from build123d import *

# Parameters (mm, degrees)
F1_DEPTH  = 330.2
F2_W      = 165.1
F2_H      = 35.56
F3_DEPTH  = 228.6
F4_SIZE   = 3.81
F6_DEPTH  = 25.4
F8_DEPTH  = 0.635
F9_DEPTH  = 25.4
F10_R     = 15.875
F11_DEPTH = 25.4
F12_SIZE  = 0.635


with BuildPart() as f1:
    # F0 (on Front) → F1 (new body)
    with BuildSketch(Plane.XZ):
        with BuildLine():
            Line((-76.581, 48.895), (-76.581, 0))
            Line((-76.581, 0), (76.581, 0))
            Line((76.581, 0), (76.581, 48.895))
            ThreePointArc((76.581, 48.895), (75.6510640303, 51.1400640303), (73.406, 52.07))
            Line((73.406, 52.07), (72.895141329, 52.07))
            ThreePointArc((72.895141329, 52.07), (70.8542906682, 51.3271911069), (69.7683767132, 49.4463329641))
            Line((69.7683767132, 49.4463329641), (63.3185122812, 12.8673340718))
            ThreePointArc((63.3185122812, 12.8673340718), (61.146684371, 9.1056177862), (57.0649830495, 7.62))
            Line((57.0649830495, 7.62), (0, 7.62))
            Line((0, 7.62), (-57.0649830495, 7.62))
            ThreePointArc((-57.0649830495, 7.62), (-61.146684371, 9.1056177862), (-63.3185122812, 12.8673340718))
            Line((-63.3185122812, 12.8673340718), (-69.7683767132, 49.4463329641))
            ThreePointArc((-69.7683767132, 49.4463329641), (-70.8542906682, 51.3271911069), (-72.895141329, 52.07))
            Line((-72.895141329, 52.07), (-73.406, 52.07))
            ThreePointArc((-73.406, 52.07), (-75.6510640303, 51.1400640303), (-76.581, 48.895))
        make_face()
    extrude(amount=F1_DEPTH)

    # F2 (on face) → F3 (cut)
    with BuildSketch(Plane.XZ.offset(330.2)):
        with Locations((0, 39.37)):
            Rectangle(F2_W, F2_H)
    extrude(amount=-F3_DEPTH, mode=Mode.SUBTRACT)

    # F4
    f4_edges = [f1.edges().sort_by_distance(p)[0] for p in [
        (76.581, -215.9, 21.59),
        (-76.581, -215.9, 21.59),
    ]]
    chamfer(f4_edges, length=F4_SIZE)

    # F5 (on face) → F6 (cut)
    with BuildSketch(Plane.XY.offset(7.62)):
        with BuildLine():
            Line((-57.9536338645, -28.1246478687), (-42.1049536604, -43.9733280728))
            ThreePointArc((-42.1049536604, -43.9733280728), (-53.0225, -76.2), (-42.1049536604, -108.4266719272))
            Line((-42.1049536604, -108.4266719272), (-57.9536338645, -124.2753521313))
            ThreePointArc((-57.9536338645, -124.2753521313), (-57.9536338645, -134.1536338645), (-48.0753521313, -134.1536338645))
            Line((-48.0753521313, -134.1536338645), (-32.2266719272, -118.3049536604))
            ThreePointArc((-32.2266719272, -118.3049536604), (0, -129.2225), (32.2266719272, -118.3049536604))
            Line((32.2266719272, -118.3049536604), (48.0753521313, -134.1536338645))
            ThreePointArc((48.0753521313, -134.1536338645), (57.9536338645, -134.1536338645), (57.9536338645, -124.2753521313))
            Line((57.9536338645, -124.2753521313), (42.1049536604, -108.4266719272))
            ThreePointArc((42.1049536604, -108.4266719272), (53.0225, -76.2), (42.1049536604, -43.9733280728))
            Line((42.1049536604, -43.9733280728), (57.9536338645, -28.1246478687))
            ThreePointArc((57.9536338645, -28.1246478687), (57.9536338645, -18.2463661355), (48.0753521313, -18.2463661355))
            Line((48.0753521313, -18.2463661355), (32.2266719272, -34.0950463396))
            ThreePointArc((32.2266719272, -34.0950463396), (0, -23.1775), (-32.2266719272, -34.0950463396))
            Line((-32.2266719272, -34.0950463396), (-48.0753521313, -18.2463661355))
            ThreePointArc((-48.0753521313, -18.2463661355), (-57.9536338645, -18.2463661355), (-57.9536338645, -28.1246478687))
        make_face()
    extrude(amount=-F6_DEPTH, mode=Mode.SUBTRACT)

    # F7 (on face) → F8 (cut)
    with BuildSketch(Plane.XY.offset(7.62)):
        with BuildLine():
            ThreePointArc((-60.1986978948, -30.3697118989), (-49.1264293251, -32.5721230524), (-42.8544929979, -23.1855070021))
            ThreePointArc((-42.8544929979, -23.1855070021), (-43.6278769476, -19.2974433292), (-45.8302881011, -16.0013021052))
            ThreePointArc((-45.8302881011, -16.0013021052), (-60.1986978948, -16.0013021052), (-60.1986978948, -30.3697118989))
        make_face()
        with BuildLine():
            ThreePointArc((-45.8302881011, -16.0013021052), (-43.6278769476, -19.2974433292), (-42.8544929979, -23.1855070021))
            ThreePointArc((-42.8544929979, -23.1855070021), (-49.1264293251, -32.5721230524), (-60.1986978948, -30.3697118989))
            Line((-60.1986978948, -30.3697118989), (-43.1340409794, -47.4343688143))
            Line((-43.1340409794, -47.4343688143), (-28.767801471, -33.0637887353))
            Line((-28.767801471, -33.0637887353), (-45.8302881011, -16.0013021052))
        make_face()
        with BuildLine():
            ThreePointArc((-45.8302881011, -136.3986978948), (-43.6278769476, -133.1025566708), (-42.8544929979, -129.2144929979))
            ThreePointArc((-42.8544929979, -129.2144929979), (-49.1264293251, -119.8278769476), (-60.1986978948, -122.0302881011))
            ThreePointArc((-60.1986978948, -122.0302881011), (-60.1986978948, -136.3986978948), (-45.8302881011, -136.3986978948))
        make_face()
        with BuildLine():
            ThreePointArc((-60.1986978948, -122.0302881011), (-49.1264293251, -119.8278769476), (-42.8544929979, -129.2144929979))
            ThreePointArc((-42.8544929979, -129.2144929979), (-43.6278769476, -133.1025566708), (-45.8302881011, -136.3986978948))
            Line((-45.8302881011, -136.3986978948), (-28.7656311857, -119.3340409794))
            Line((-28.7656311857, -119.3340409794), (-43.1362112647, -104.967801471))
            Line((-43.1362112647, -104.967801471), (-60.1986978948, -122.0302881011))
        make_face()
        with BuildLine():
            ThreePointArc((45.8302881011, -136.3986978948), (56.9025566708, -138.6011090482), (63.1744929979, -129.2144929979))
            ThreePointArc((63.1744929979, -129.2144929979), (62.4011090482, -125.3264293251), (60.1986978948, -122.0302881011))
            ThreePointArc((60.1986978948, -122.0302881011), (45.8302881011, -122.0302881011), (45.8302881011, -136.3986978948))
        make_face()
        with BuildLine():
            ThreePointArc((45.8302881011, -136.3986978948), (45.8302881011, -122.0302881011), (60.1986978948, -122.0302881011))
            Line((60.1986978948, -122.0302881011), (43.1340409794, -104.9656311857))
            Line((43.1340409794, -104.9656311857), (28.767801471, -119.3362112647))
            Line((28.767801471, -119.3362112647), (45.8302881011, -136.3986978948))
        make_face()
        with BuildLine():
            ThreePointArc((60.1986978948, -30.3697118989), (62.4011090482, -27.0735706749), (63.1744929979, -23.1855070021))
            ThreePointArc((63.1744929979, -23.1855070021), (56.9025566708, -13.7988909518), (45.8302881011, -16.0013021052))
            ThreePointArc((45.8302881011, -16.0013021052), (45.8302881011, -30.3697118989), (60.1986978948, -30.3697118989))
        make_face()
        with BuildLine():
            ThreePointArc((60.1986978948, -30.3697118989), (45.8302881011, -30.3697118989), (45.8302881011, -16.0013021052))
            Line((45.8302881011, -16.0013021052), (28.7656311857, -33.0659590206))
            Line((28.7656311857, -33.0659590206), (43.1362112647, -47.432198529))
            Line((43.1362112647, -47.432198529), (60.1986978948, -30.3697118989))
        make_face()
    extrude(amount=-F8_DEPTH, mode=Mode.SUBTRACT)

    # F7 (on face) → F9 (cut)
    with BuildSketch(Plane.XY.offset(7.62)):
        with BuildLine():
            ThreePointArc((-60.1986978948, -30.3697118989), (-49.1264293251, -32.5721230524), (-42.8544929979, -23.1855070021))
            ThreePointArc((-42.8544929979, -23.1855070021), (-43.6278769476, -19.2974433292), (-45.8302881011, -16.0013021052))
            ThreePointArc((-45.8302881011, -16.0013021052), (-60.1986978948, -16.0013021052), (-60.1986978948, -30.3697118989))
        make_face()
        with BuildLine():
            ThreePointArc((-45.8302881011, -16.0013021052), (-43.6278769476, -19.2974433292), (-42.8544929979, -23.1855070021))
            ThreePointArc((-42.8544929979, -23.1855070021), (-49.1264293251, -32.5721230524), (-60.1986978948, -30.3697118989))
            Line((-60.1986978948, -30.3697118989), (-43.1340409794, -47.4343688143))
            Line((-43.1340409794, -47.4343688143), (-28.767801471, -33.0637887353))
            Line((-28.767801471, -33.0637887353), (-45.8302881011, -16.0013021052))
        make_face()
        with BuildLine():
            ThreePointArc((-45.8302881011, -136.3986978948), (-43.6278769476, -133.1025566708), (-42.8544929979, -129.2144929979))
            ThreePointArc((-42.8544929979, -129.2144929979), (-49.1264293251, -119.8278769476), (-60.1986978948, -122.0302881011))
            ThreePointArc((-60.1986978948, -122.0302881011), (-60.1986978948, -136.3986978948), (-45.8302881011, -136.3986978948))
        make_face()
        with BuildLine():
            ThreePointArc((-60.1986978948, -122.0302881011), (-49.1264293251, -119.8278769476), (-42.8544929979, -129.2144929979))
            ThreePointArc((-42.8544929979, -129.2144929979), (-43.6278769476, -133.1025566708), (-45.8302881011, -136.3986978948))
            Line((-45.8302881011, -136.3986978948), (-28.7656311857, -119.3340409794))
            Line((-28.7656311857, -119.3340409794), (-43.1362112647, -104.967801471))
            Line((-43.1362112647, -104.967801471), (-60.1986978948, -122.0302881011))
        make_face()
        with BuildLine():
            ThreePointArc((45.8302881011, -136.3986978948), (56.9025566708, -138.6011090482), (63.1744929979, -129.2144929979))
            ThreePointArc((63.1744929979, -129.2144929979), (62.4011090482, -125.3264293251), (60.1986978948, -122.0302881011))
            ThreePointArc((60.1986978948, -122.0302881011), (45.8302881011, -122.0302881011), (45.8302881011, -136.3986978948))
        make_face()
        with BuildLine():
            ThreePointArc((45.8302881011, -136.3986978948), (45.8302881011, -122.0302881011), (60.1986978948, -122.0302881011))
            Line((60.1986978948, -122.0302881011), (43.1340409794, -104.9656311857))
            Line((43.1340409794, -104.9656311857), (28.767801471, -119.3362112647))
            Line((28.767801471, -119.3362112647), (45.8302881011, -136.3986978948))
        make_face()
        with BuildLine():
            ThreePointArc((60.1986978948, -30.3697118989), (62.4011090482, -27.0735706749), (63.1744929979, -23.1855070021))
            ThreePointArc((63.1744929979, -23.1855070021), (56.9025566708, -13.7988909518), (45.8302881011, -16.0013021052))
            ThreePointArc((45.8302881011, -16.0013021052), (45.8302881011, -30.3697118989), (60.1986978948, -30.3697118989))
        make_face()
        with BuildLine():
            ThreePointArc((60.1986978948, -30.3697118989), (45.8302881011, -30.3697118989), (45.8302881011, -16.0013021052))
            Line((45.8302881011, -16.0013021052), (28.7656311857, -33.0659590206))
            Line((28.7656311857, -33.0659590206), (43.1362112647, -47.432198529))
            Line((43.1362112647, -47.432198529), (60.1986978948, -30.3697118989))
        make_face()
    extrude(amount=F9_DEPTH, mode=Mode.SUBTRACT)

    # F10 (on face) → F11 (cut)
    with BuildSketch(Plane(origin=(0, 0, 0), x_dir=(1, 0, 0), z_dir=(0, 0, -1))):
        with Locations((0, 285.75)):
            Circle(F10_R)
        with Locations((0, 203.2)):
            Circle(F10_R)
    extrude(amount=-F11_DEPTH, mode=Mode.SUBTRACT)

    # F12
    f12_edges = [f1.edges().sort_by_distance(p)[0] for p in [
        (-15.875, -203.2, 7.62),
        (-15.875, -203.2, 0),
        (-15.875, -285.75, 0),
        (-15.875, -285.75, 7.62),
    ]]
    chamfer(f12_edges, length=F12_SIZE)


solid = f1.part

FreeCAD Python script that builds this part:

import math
import FreeCAD as App
import Part
import Sketcher
Q = App.Units.Quantity


def edges_at(feature, points):
    """Names of the edges that pass closest to the given points."""
    edges = feature.Shape.Edges
    near = lambda p: min(range(len(edges)), key=lambda i: edges[i].distToShape(Part.Vertex(*p))[0])
    return sorted({f"Edge{near(p) + 1}" for p in points})


def add_polygon(sketch, points):
    """Adds a closed chain of lines whose ends are joined by coincident constraints."""
    first, n = sketch.GeometryCount, len(points)
    for a, b in zip(points, points[1:] + points[:1]):
        sketch.addGeometry(Part.LineSegment(App.Vector(*a, 0), App.Vector(*b, 0)), False)
    for i in range(n):
        sketch.addConstraint(Sketcher.Constraint("Coincident", first + i, 2, first + (i + 1) % n, 1))

doc = App.newDocument("Part")
body = doc.addObject("PartDesign::Body", "Body")

# Sketch on XZ plane
sketch1 = body.newObject("Sketcher::SketchObject", "Sketch")
sketch1.AttachmentSupport = (doc.getObject("XZ_Plane"), [""])
sketch1.MapMode = "FlatFace"
sketch1.addGeometry([
    Part.LineSegment(App.Vector(-76.6, 48.9, 0), App.Vector(-76.6, 0, 0)),  # 0
    Part.LineSegment(App.Vector(-76.6, 0, 0), App.Vector(76.6, 0, 0)),  # 1
    Part.LineSegment(App.Vector(76.6, 0, 0), App.Vector(76.6, 48.9, 0)),  # 2
    Part.ArcOfCircle(Part.Circle(App.Vector(73.4, 48.9, 0), App.Vector(0, 0, 1), 3.2), math.radians(0), math.radians(90)),  # 3
    Part.LineSegment(App.Vector(73.4, 52.1, 0), App.Vector(72.9, 52.1, 0)),  # 4
    Part.ArcOfCircle(Part.Circle(App.Vector(72.9, 48.9, 0), App.Vector(0, 0, 1), 3.2), math.radians(90), math.radians(170)),  # 5
    Part.LineSegment(App.Vector(69.8, 49.4, 0), App.Vector(63.3, 12.9, 0)),  # 6
    Part.ArcOfCircle(Part.Circle(App.Vector(57.1, 14, 0), App.Vector(0, 0, 1), 6.3), math.radians(-90), math.radians(-10)),  # 7
    Part.LineSegment(App.Vector(57.1, 7.6, 0), App.Vector(-57.1, 7.6, 0)),  # 8
    Part.ArcOfCircle(Part.Circle(App.Vector(-57.1, 14, 0), App.Vector(0, 0, 1), 6.3), math.radians(-170), math.radians(-90)),  # 9
    Part.LineSegment(App.Vector(-63.3, 12.9, 0), App.Vector(-69.8, 49.4, 0)),  # 10
    Part.ArcOfCircle(Part.Circle(App.Vector(-72.9, 48.9, 0), App.Vector(0, 0, 1), 3.2), math.radians(10), math.radians(90)),  # 11
    Part.LineSegment(App.Vector(-72.9, 52.1, 0), App.Vector(-73.4, 52.1, 0)),  # 12
    Part.ArcOfCircle(Part.Circle(App.Vector(-73.4, 48.9, 0), App.Vector(0, 0, 1), 3.2), math.radians(90), math.radians(180)),  # 13
], False)
sketch1.addConstraint([
    Sketcher.Constraint("Coincident", 0, 2, 1, 1),
    Sketcher.Constraint("Coincident", 1, 2, 2, 1),
    Sketcher.Constraint("Tangent", 2, 2, 3, 1),
    Sketcher.Constraint("Tangent", 3, 2, 4, 1),
    Sketcher.Constraint("Tangent", 4, 2, 5, 1),
    Sketcher.Constraint("Tangent", 5, 2, 6, 1),
    Sketcher.Constraint("Tangent", 6, 2, 7, 2),
    Sketcher.Constraint("Tangent", 7, 1, 8, 1),
    Sketcher.Constraint("Tangent", 8, 2, 9, 2),
    Sketcher.Constraint("Tangent", 9, 1, 10, 1),
    Sketcher.Constraint("Tangent", 10, 2, 11, 1),
    Sketcher.Constraint("Tangent", 11, 2, 12, 1),
    Sketcher.Constraint("Tangent", 12, 2, 13, 1),
    Sketcher.Constraint("Tangent", 13, 2, 0, 1),
    Sketcher.Constraint("Vertical", 0),
    Sketcher.Constraint("Horizontal", 1),
    Sketcher.Constraint("Vertical", 2),
    Sketcher.Constraint("Horizontal", 4),
    Sketcher.Constraint("Horizontal", 8),
    Sketcher.Constraint("Horizontal", 12),
    Sketcher.Constraint("Equal", 3, 5),
    Sketcher.Constraint("Equal", 7, 9),
    Sketcher.Constraint("Equal", 5, 11),
    Sketcher.Constraint("Equal", 11, 13),
    Sketcher.Constraint("Symmetric", 0, 2, 1, 2, -1, 1),
    Sketcher.Constraint("Symmetric", 5, 3, 11, 3, -2),
    Sketcher.Constraint("Horizontal", 6, 2, 9, 1),
    Sketcher.Constraint("Radius", 7, Q("0.25 in")),
    Sketcher.Constraint("Angle", 6, Q("-100 deg")),
    Sketcher.Constraint("Radius", 3, Q("0.125 in")),
    Sketcher.Constraint("DistanceX", 1, 1, 1, 2, Q("6.03 in")),
    Sketcher.Constraint("DistanceY", -1, 1, 7, 1, Q("0.3 in")),
    Sketcher.Constraint("DistanceY", 7, 3, 3, 2, Q("1.5 in")),
    Sketcher.Constraint("DistanceX", 4, 2, 4, 1, 0.510859),
])
pad1 = body.newObject("PartDesign::Pad", "Pad")
pad1.Profile = sketch1
pad1.Length = Q("13 in")

# Sketch on XZ plane
sketch2 = body.newObject("Sketcher::SketchObject", "Sketch001")
sketch2.AttachmentSupport = (doc.getObject("XZ_Plane"), [""])
sketch2.MapMode = "FlatFace"
sketch2.AttachmentOffset = App.Placement(App.Vector(0, 0, 13 * 25.4), App.Rotation())
add_polygon(sketch2, [(-83, 57), (-83, 22), (83, 22), (83, 57)])  # lines 0-3
sketch2.addConstraint([
    Sketcher.Constraint("Vertical", 0),
    Sketcher.Constraint("Horizontal", 1),
    Sketcher.Constraint("Vertical", 2),
    Sketcher.Constraint("Horizontal", 3),
    Sketcher.Constraint("DistanceX", 1, 1, 1, 2, Q("6.5 in")),
    Sketcher.Constraint("DistanceY", 0, 2, 0, 1, Q("1.4 in")),
    Sketcher.Constraint("DistanceX", 0, 2, -1, 1, Q("3.25 in")),
    Sketcher.Constraint("DistanceY", -1, 1, 0, 2, Q("0.85 in")),
])
pocket1 = body.newObject("PartDesign::Pocket", "Pocket")
pocket1.Profile = sketch2
pocket1.Length = Q("9 in")
doc.recompute()

chamfer = body.newObject("PartDesign::Chamfer", "Chamfer")
chamfer.Base = (pocket1, edges_at(pocket1, [(76.581, -215.9, 21.59), (-76.581, -215.9, 21.59)]))
chamfer.Size = Q("0.15 in")

# Sketch on XY plane
sketch3 = body.newObject("Sketcher::SketchObject", "Sketch002")
sketch3.AttachmentSupport = (doc.getObject("XY_Plane"), [""])
sketch3.MapMode = "FlatFace"
sketch3.AttachmentOffset = App.Placement(App.Vector(0, 0, 0.3 * 25.4), App.Rotation())
sketch3.addGeometry([
    Part.LineSegment(App.Vector(-58, -28, 0), App.Vector(-42, -44, 0)),  # 0
    Part.ArcOfCircle(Part.Circle(App.Vector(0, -76, 0), App.Vector(0, 0, 1), 53), math.radians(143), math.radians(217)),  # 1
    Part.LineSegment(App.Vector(-42, -108, 0), App.Vector(-58, -124, 0)),  # 2
    Part.ArcOfCircle(Part.Circle(App.Vector(-53, -129, 0), App.Vector(0, 0, 1), 7), math.radians(135), math.radians(315)),  # 3
    Part.LineSegment(App.Vector(-48, -134, 0), App.Vector(-32, -118, 0)),  # 4
    Part.ArcOfCircle(Part.Circle(App.Vector(0, -76, 0), App.Vector(0, 0, 1), 53), math.radians(-127), math.radians(-53)),  # 5
    Part.LineSegment(App.Vector(32, -118, 0), App.Vector(48, -134, 0)),  # 6
    Part.ArcOfCircle(Part.Circle(App.Vector(53, -129, 0), App.Vector(0, 0, 1), 7), math.radians(-135), math.radians(45)),  # 7
    Part.LineSegment(App.Vector(58, -124, 0), App.Vector(42, -108, 0)),  # 8
    Part.ArcOfCircle(Part.Circle(App.Vector(0, -76, 0), App.Vector(0, 0, 1), 53), math.radians(-37), math.radians(37)),  # 9
    Part.LineSegment(App.Vector(42, -44, 0), App.Vector(58, -28, 0)),  # 10
    Part.ArcOfCircle(Part.Circle(App.Vector(53, -23, 0), App.Vector(0, 0, 1), 7), math.radians(-45), math.radians(135)),  # 11
    Part.LineSegment(App.Vector(48, -18, 0), App.Vector(32, -34, 0)),  # 12
    Part.ArcOfCircle(Part.Circle(App.Vector(0, -76, 0), App.Vector(0, 0, 1), 53), math.radians(53), math.radians(127)),  # 13
    Part.LineSegment(App.Vector(-32, -34, 0), App.Vector(-48, -18, 0)),  # 14
    Part.ArcOfCircle(Part.Circle(App.Vector(-53, -23, 0), App.Vector(0, 0, 1), 7), math.radians(45), math.radians(225)),  # 15
], False)
sketch3.addConstraint([
    Sketcher.Constraint("Coincident", 0, 2, 1, 1),
    Sketcher.Constraint("Coincident", 1, 2, 2, 1),
    Sketcher.Constraint("Tangent", 2, 2, 3, 1),
    Sketcher.Constraint("Tangent", 3, 2, 4, 1),
    Sketcher.Constraint("Coincident", 4, 2, 5, 1),
    Sketcher.Constraint("Coincident", 5, 2, 6, 1),
    Sketcher.Constraint("Tangent", 6, 2, 7, 1),
    Sketcher.Constraint("Tangent", 7, 2, 8, 1),
    Sketcher.Constraint("Coincident", 8, 2, 9, 1),
    Sketcher.Constraint("Coincident", 9, 2, 10, 1),
    Sketcher.Constraint("Tangent", 10, 2, 11, 1),
    Sketcher.Constraint("Tangent", 11, 2, 12, 1),
    Sketcher.Constraint("Coincident", 12, 2, 13, 1),
    Sketcher.Constraint("Coincident", 13, 2, 14, 1),
    Sketcher.Constraint("Tangent", 14, 2, 15, 1),
    Sketcher.Constraint("Tangent", 15, 2, 0, 1),
    Sketcher.Constraint("Coincident", 5, 3, 1, 3),
    Sketcher.Constraint("Coincident", 9, 3, 1, 3),
    Sketcher.Constraint("Coincident", 13, 3, 1, 3),
    Sketcher.Constraint("Equal", 1, 5),
    Sketcher.Constraint("Equal", 3, 7),
    Sketcher.Constraint("Equal", 5, 9),
    Sketcher.Constraint("Equal", 7, 11),
    Sketcher.Constraint("Equal", 9, 13),
    Sketcher.Constraint("Equal", 11, 15),
    Sketcher.Constraint("Symmetric", 3, 3, 7, 3, -2),
    Sketcher.Constraint("Symmetric", 11, 3, 15, 3, -2),
    Sketcher.Constraint("Symmetric", 4, 2, 5, 2, -2),
    Sketcher.Constraint("Perpendicular", 0, 2),
    Sketcher.Constraint("Parallel", 2, 4),
    Sketcher.Constraint("Perpendicular", 4, 6),
    Sketcher.Constraint("Parallel", 6, 8),
    Sketcher.Constraint("Perpendicular", 8, 10),
    Sketcher.Constraint("Parallel", 10, 12),
    Sketcher.Constraint("Perpendicular", 12, 14),
    Sketcher.Constraint("Vertical", 7, 3, 11, 3),
    Sketcher.Constraint("Vertical", 0, 2, 1, 2),
    Sketcher.Constraint("Equal", 2, 4),
    Sketcher.Constraint("DistanceY", 1, 3, -1, 1, Q("3 in")),
    Sketcher.Constraint("Radius", 3, Q("0.275 in")),
    Sketcher.Constraint("Radius", 1, Q("2.0875 in")),
    Sketcher.Constraint("DistanceX", 3, 2, 1, 2, 5.970398),
])
pocket2 = body.newObject("PartDesign::Pocket", "Pocket001")
pocket2.Profile = sketch3
pocket2.Length = Q("1 in")

# Sketch on XY plane
sketch4 = body.newObject("Sketcher::SketchObject", "Sketch003")
sketch4.AttachmentSupport = (doc.getObject("XY_Plane"), [""])
sketch4.MapMode = "FlatFace"
sketch4.AttachmentOffset = App.Placement(App.Vector(0, 0, 0.3 * 25.4), App.Rotation())
sketch4.addGeometry([
    Part.ArcOfCircle(Part.Circle(App.Vector(-53, -23, 0), App.Vector(0, 0, 1), 10), math.radians(45), math.radians(225)),  # 0
    Part.LineSegment(App.Vector(-60, -30, 0), App.Vector(-43, -47, 0)),  # 1
    Part.LineSegment(App.Vector(-43, -47, 0), App.Vector(-29, -33, 0)),  # 2
    Part.LineSegment(App.Vector(-29, -33, 0), App.Vector(-46, -16, 0)),  # 3
    Part.ArcOfCircle(Part.Circle(App.Vector(-53, -129, 0), App.Vector(0, 0, 1), 10), math.radians(135), math.radians(315)),  # 4
    Part.LineSegment(App.Vector(-46, -136, 0), App.Vector(-29, -119, 0)),  # 5
    Part.LineSegment(App.Vector(-29, -119, 0), App.Vector(-43, -105, 0)),  # 6
    Part.LineSegment(App.Vector(-43, -105, 0), App.Vector(-60, -122, 0)),  # 7
    Part.ArcOfCircle(Part.Circle(App.Vector(53, -129, 0), App.Vector(0, 0, 1), 10), math.radians(-135), math.radians(0)),  # 8
    Part.ArcOfCircle(Part.Circle(App.Vector(53, -129, 0), App.Vector(0, 0, 1), 10), math.radians(0), math.radians(45)),  # 9
    Part.LineSegment(App.Vector(60, -122, 0), App.Vector(43, -105, 0)),  # 10
    Part.LineSegment(App.Vector(43, -105, 0), App.Vector(29, -119, 0)),  # 11
    Part.LineSegment(App.Vector(29, -119, 0), App.Vector(46, -136, 0)),  # 12
    Part.ArcOfCircle(Part.Circle(App.Vector(53, -23, 0), App.Vector(0, 0, 1), 10), math.radians(-45), math.radians(0)),  # 13
    Part.ArcOfCircle(Part.Circle(App.Vector(53, -23, 0), App.Vector(0, 0, 1), 10), math.radians(0), math.radians(135)),  # 14
    Part.LineSegment(App.Vector(46, -16, 0), App.Vector(29, -33, 0)),  # 15
    Part.LineSegment(App.Vector(29, -33, 0), App.Vector(43, -47, 0)),  # 16
    Part.LineSegment(App.Vector(43, -47, 0), App.Vector(60, -30, 0)),  # 17
], False)
sketch4.addConstraint([
    Sketcher.Constraint("Tangent", 0, 2, 1, 1),
    Sketcher.Constraint("Coincident", 1, 2, 2, 1),
    Sketcher.Constraint("Coincident", 2, 2, 3, 1),
    Sketcher.Constraint("Tangent", 3, 2, 0, 1),
    Sketcher.Constraint("Tangent", 4, 2, 5, 1),
    Sketcher.Constraint("Coincident", 5, 2, 6, 1),
    Sketcher.Constraint("Coincident", 6, 2, 7, 1),
    Sketcher.Constraint("Tangent", 7, 2, 4, 1),
    Sketcher.Constraint("Tangent", 8, 2, 9, 1),
    Sketcher.Constraint("Tangent", 9, 2, 10, 1),
    Sketcher.Constraint("Coincident", 10, 2, 11, 1),
    Sketcher.Constraint("Coincident", 11, 2, 12, 1),
    Sketcher.Constraint("Tangent", 12, 2, 8, 1),
    Sketcher.Constraint("Tangent", 13, 2, 14, 1),
    Sketcher.Constraint("Tangent", 14, 2, 15, 1),
    Sketcher.Constraint("Coincident", 15, 2, 16, 1),
    Sketcher.Constraint("Coincident", 16, 2, 17, 1),
    Sketcher.Constraint("Tangent", 17, 2, 13, 1),
    Sketcher.Constraint("Equal", 0, 4),
    Sketcher.Constraint("Equal", 4, 8),
    Sketcher.Constraint("Equal", 8, 9),
    Sketcher.Constraint("Equal", 9, 13),
    Sketcher.Constraint("Equal", 13, 14),
    Sketcher.Constraint("Symmetric", 4, 3, 8, 3, -2),
    Sketcher.Constraint("Symmetric", 0, 3, 13, 3, -2),
    Sketcher.Constraint("Parallel", 1, 3),
    Sketcher.Constraint("Perpendicular", 3, 5),
    Sketcher.Constraint("Perpendicular", 2, 6),
    Sketcher.Constraint("Parallel", 5, 7),
    Sketcher.Constraint("Perpendicular", 7, 10),
    Sketcher.Constraint("Perpendicular", 6, 11),
    Sketcher.Constraint("Parallel", 10, 12),
    Sketcher.Constraint("Perpendicular", 12, 15),
    Sketcher.Constraint("Perpendicular", 11, 16),
    Sketcher.Constraint("Parallel", 15, 17),
    Sketcher.Constraint("Horizontal", 9, 3, 8, 2),
    Sketcher.Constraint("Horizontal", 7, 2, 9, 2),
    Sketcher.Constraint("Horizontal", 14, 3, 13, 2),
    Sketcher.Constraint("Vertical", 0, 3, 4, 3),
    Sketcher.Constraint("Equal", 1, 5),
    Sketcher.Constraint("Equal", 5, 10),
    Sketcher.Constraint("Equal", 10, 15),
    Sketcher.Constraint("Radius", 0, Q("0.4 in")),
    Sketcher.Constraint("Distance", 3, Q("0.95 in")),
    Sketcher.Constraint("DistanceX", 1, 2, 2, 2, Q("0.5656 in")),
    Sketcher.Constraint("DistanceX", 2, 2, -1, 1, 28.767801),
    Sketcher.Constraint("DistanceY", 6, 2, -1, 1, 104.967801),
    Sketcher.Constraint("DistanceY", 16, 2, -1, 1, 47.432199),
])
pocket3 = body.newObject("PartDesign::Pocket", "Pocket002")
pocket3.Profile = sketch4
pocket3.Length = Q("0.025 in")

# Sketch on XY plane
sketch5 = body.newObject("Sketcher::SketchObject", "Sketch004")
sketch5.AttachmentSupport = (doc.getObject("XY_Plane"), [""])
sketch5.MapMode = "FlatFace"
sketch5.AttachmentOffset = App.Placement(App.Vector(0, 0, 0.3 * 25.4), App.Rotation())
sketch5.addGeometry([
    Part.ArcOfCircle(Part.Circle(App.Vector(-53, -23, 0), App.Vector(0, 0, 1), 10), math.radians(45), math.radians(225)),  # 0
    Part.LineSegment(App.Vector(-60, -30, 0), App.Vector(-43, -47, 0)),  # 1
    Part.LineSegment(App.Vector(-43, -47, 0), App.Vector(-29, -33, 0)),  # 2
    Part.LineSegment(App.Vector(-29, -33, 0), App.Vector(-46, -16, 0)),  # 3
    Part.ArcOfCircle(Part.Circle(App.Vector(-53, -129, 0), App.Vector(0, 0, 1), 10), math.radians(135), math.radians(315)),  # 4
    Part.LineSegment(App.Vector(-46, -136, 0), App.Vector(-29, -119, 0)),  # 5
    Part.LineSegment(App.Vector(-29, -119, 0), App.Vector(-43, -105, 0)),  # 6
    Part.LineSegment(App.Vector(-43, -105, 0), App.Vector(-60, -122, 0)),  # 7
    Part.ArcOfCircle(Part.Circle(App.Vector(53, -129, 0), App.Vector(0, 0, 1), 10), math.radians(-135), math.radians(0)),  # 8
    Part.ArcOfCircle(Part.Circle(App.Vector(53, -129, 0), App.Vector(0, 0, 1), 10), math.radians(0), math.radians(45)),  # 9
    Part.LineSegment(App.Vector(60, -122, 0), App.Vector(43, -105, 0)),  # 10
    Part.LineSegment(App.Vector(43, -105, 0), App.Vector(29, -119, 0)),  # 11
    Part.LineSegment(App.Vector(29, -119, 0), App.Vector(46, -136, 0)),  # 12
    Part.ArcOfCircle(Part.Circle(App.Vector(53, -23, 0), App.Vector(0, 0, 1), 10), math.radians(-45), math.radians(0)),  # 13
    Part.ArcOfCircle(Part.Circle(App.Vector(53, -23, 0), App.Vector(0, 0, 1), 10), math.radians(0), math.radians(135)),  # 14
    Part.LineSegment(App.Vector(46, -16, 0), App.Vector(29, -33, 0)),  # 15
    Part.LineSegment(App.Vector(29, -33, 0), App.Vector(43, -47, 0)),  # 16
    Part.LineSegment(App.Vector(43, -47, 0), App.Vector(60, -30, 0)),  # 17
], False)
sketch5.addConstraint([
    Sketcher.Constraint("Tangent", 0, 2, 1, 1),
    Sketcher.Constraint("Coincident", 1, 2, 2, 1),
    Sketcher.Constraint("Coincident", 2, 2, 3, 1),
    Sketcher.Constraint("Tangent", 3, 2, 0, 1),
    Sketcher.Constraint("Tangent", 4, 2, 5, 1),
    Sketcher.Constraint("Coincident", 5, 2, 6, 1),
    Sketcher.Constraint("Coincident", 6, 2, 7, 1),
    Sketcher.Constraint("Tangent", 7, 2, 4, 1),
    Sketcher.Constraint("Tangent", 8, 2, 9, 1),
    Sketcher.Constraint("Tangent", 9, 2, 10, 1),
    Sketcher.Constraint("Coincident", 10, 2, 11, 1),
    Sketcher.Constraint("Coincident", 11, 2, 12, 1),
    Sketcher.Constraint("Tangent", 12, 2, 8, 1),
    Sketcher.Constraint("Tangent", 13, 2, 14, 1),
    Sketcher.Constraint("Tangent", 14, 2, 15, 1),
    Sketcher.Constraint("Coincident", 15, 2, 16, 1),
    Sketcher.Constraint("Coincident", 16, 2, 17, 1),
    Sketcher.Constraint("Tangent", 17, 2, 13, 1),
    Sketcher.Constraint("Equal", 0, 4),
    Sketcher.Constraint("Equal", 4, 8),
    Sketcher.Constraint("Equal", 8, 9),
    Sketcher.Constraint("Equal", 9, 13),
    Sketcher.Constraint("Equal", 13, 14),
    Sketcher.Constraint("Symmetric", 4, 3, 8, 3, -2),
    Sketcher.Constraint("Symmetric", 0, 3, 13, 3, -2),
    Sketcher.Constraint("Parallel", 1, 3),
    Sketcher.Constraint("Perpendicular", 3, 5),
    Sketcher.Constraint("Perpendicular", 2, 6),
    Sketcher.Constraint("Parallel", 5, 7),
    Sketcher.Constraint("Perpendicular", 7, 10),
    Sketcher.Constraint("Perpendicular", 6, 11),
    Sketcher.Constraint("Parallel", 10, 12),
    Sketcher.Constraint("Perpendicular", 12, 15),
    Sketcher.Constraint("Perpendicular", 11, 16),
    Sketcher.Constraint("Parallel", 15, 17),
    Sketcher.Constraint("Horizontal", 9, 3, 8, 2),
    Sketcher.Constraint("Horizontal", 7, 2, 9, 2),
    Sketcher.Constraint("Horizontal", 14, 3, 13, 2),
    Sketcher.Constraint("Vertical", 0, 3, 4, 3),
    Sketcher.Constraint("Equal", 1, 5),
    Sketcher.Constraint("Equal", 5, 10),
    Sketcher.Constraint("Equal", 10, 15),
    Sketcher.Constraint("Radius", 0, Q("0.4 in")),
    Sketcher.Constraint("Distance", 3, Q("0.95 in")),
    Sketcher.Constraint("DistanceX", 1, 2, 2, 2, Q("0.5656 in")),
    Sketcher.Constraint("DistanceX", 2, 2, -1, 1, 28.767801),
    Sketcher.Constraint("DistanceY", 6, 2, -1, 1, 104.967801),
    Sketcher.Constraint("DistanceY", 16, 2, -1, 1, 47.432199),
])
pocket4 = body.newObject("PartDesign::Pocket", "Pocket003")
pocket4.Profile = sketch5
pocket4.Length = Q("1 in")
pocket4.Reversed = True

# Sketch on XY plane
sketch6 = body.newObject("Sketcher::SketchObject", "Sketch005")
sketch6.AttachmentSupport = (doc.getObject("XY_Plane"), [""])
sketch6.MapMode = "FlatFace"
sketch6.addGeometry([
    Part.Circle(App.Vector(0, -286, 0), App.Vector(0, 0, 1), 16),
    Part.Circle(App.Vector(0, -203, 0), App.Vector(0, 0, 1), 16),
], False)
sketch6.addConstraint([
    Sketcher.Constraint("Equal", 0, 1),
    Sketcher.Constraint("PointOnObject", 0, 3, -2),
    Sketcher.Constraint("PointOnObject", 1, 3, -2),
    Sketcher.Constraint("Diameter", 0, Q("1.25 in")),
    Sketcher.Constraint("DistanceY", 1, 3, -1, 1, Q("8 in")),
    Sketcher.Constraint("DistanceY", 0, 3, -1, 1, Q("11.25 in")),
])
pocket5 = body.newObject("PartDesign::Pocket", "Pocket004")
pocket5.Profile = sketch6
pocket5.Length = Q("1 in")
pocket5.Reversed = True
doc.recompute()

chamfer2 = body.newObject("PartDesign::Chamfer", "Chamfer001")
chamfer2.Base = (pocket5, edges_at(pocket5, [
    (-15.875, -203.2, 7.62),
    (-15.875, -203.2, 0),
    (-15.875, -285.75, 0),
    (-15.875, -285.75, 7.62),
]))
chamfer2.Size = Q("0.025 in")

doc.recompute()
